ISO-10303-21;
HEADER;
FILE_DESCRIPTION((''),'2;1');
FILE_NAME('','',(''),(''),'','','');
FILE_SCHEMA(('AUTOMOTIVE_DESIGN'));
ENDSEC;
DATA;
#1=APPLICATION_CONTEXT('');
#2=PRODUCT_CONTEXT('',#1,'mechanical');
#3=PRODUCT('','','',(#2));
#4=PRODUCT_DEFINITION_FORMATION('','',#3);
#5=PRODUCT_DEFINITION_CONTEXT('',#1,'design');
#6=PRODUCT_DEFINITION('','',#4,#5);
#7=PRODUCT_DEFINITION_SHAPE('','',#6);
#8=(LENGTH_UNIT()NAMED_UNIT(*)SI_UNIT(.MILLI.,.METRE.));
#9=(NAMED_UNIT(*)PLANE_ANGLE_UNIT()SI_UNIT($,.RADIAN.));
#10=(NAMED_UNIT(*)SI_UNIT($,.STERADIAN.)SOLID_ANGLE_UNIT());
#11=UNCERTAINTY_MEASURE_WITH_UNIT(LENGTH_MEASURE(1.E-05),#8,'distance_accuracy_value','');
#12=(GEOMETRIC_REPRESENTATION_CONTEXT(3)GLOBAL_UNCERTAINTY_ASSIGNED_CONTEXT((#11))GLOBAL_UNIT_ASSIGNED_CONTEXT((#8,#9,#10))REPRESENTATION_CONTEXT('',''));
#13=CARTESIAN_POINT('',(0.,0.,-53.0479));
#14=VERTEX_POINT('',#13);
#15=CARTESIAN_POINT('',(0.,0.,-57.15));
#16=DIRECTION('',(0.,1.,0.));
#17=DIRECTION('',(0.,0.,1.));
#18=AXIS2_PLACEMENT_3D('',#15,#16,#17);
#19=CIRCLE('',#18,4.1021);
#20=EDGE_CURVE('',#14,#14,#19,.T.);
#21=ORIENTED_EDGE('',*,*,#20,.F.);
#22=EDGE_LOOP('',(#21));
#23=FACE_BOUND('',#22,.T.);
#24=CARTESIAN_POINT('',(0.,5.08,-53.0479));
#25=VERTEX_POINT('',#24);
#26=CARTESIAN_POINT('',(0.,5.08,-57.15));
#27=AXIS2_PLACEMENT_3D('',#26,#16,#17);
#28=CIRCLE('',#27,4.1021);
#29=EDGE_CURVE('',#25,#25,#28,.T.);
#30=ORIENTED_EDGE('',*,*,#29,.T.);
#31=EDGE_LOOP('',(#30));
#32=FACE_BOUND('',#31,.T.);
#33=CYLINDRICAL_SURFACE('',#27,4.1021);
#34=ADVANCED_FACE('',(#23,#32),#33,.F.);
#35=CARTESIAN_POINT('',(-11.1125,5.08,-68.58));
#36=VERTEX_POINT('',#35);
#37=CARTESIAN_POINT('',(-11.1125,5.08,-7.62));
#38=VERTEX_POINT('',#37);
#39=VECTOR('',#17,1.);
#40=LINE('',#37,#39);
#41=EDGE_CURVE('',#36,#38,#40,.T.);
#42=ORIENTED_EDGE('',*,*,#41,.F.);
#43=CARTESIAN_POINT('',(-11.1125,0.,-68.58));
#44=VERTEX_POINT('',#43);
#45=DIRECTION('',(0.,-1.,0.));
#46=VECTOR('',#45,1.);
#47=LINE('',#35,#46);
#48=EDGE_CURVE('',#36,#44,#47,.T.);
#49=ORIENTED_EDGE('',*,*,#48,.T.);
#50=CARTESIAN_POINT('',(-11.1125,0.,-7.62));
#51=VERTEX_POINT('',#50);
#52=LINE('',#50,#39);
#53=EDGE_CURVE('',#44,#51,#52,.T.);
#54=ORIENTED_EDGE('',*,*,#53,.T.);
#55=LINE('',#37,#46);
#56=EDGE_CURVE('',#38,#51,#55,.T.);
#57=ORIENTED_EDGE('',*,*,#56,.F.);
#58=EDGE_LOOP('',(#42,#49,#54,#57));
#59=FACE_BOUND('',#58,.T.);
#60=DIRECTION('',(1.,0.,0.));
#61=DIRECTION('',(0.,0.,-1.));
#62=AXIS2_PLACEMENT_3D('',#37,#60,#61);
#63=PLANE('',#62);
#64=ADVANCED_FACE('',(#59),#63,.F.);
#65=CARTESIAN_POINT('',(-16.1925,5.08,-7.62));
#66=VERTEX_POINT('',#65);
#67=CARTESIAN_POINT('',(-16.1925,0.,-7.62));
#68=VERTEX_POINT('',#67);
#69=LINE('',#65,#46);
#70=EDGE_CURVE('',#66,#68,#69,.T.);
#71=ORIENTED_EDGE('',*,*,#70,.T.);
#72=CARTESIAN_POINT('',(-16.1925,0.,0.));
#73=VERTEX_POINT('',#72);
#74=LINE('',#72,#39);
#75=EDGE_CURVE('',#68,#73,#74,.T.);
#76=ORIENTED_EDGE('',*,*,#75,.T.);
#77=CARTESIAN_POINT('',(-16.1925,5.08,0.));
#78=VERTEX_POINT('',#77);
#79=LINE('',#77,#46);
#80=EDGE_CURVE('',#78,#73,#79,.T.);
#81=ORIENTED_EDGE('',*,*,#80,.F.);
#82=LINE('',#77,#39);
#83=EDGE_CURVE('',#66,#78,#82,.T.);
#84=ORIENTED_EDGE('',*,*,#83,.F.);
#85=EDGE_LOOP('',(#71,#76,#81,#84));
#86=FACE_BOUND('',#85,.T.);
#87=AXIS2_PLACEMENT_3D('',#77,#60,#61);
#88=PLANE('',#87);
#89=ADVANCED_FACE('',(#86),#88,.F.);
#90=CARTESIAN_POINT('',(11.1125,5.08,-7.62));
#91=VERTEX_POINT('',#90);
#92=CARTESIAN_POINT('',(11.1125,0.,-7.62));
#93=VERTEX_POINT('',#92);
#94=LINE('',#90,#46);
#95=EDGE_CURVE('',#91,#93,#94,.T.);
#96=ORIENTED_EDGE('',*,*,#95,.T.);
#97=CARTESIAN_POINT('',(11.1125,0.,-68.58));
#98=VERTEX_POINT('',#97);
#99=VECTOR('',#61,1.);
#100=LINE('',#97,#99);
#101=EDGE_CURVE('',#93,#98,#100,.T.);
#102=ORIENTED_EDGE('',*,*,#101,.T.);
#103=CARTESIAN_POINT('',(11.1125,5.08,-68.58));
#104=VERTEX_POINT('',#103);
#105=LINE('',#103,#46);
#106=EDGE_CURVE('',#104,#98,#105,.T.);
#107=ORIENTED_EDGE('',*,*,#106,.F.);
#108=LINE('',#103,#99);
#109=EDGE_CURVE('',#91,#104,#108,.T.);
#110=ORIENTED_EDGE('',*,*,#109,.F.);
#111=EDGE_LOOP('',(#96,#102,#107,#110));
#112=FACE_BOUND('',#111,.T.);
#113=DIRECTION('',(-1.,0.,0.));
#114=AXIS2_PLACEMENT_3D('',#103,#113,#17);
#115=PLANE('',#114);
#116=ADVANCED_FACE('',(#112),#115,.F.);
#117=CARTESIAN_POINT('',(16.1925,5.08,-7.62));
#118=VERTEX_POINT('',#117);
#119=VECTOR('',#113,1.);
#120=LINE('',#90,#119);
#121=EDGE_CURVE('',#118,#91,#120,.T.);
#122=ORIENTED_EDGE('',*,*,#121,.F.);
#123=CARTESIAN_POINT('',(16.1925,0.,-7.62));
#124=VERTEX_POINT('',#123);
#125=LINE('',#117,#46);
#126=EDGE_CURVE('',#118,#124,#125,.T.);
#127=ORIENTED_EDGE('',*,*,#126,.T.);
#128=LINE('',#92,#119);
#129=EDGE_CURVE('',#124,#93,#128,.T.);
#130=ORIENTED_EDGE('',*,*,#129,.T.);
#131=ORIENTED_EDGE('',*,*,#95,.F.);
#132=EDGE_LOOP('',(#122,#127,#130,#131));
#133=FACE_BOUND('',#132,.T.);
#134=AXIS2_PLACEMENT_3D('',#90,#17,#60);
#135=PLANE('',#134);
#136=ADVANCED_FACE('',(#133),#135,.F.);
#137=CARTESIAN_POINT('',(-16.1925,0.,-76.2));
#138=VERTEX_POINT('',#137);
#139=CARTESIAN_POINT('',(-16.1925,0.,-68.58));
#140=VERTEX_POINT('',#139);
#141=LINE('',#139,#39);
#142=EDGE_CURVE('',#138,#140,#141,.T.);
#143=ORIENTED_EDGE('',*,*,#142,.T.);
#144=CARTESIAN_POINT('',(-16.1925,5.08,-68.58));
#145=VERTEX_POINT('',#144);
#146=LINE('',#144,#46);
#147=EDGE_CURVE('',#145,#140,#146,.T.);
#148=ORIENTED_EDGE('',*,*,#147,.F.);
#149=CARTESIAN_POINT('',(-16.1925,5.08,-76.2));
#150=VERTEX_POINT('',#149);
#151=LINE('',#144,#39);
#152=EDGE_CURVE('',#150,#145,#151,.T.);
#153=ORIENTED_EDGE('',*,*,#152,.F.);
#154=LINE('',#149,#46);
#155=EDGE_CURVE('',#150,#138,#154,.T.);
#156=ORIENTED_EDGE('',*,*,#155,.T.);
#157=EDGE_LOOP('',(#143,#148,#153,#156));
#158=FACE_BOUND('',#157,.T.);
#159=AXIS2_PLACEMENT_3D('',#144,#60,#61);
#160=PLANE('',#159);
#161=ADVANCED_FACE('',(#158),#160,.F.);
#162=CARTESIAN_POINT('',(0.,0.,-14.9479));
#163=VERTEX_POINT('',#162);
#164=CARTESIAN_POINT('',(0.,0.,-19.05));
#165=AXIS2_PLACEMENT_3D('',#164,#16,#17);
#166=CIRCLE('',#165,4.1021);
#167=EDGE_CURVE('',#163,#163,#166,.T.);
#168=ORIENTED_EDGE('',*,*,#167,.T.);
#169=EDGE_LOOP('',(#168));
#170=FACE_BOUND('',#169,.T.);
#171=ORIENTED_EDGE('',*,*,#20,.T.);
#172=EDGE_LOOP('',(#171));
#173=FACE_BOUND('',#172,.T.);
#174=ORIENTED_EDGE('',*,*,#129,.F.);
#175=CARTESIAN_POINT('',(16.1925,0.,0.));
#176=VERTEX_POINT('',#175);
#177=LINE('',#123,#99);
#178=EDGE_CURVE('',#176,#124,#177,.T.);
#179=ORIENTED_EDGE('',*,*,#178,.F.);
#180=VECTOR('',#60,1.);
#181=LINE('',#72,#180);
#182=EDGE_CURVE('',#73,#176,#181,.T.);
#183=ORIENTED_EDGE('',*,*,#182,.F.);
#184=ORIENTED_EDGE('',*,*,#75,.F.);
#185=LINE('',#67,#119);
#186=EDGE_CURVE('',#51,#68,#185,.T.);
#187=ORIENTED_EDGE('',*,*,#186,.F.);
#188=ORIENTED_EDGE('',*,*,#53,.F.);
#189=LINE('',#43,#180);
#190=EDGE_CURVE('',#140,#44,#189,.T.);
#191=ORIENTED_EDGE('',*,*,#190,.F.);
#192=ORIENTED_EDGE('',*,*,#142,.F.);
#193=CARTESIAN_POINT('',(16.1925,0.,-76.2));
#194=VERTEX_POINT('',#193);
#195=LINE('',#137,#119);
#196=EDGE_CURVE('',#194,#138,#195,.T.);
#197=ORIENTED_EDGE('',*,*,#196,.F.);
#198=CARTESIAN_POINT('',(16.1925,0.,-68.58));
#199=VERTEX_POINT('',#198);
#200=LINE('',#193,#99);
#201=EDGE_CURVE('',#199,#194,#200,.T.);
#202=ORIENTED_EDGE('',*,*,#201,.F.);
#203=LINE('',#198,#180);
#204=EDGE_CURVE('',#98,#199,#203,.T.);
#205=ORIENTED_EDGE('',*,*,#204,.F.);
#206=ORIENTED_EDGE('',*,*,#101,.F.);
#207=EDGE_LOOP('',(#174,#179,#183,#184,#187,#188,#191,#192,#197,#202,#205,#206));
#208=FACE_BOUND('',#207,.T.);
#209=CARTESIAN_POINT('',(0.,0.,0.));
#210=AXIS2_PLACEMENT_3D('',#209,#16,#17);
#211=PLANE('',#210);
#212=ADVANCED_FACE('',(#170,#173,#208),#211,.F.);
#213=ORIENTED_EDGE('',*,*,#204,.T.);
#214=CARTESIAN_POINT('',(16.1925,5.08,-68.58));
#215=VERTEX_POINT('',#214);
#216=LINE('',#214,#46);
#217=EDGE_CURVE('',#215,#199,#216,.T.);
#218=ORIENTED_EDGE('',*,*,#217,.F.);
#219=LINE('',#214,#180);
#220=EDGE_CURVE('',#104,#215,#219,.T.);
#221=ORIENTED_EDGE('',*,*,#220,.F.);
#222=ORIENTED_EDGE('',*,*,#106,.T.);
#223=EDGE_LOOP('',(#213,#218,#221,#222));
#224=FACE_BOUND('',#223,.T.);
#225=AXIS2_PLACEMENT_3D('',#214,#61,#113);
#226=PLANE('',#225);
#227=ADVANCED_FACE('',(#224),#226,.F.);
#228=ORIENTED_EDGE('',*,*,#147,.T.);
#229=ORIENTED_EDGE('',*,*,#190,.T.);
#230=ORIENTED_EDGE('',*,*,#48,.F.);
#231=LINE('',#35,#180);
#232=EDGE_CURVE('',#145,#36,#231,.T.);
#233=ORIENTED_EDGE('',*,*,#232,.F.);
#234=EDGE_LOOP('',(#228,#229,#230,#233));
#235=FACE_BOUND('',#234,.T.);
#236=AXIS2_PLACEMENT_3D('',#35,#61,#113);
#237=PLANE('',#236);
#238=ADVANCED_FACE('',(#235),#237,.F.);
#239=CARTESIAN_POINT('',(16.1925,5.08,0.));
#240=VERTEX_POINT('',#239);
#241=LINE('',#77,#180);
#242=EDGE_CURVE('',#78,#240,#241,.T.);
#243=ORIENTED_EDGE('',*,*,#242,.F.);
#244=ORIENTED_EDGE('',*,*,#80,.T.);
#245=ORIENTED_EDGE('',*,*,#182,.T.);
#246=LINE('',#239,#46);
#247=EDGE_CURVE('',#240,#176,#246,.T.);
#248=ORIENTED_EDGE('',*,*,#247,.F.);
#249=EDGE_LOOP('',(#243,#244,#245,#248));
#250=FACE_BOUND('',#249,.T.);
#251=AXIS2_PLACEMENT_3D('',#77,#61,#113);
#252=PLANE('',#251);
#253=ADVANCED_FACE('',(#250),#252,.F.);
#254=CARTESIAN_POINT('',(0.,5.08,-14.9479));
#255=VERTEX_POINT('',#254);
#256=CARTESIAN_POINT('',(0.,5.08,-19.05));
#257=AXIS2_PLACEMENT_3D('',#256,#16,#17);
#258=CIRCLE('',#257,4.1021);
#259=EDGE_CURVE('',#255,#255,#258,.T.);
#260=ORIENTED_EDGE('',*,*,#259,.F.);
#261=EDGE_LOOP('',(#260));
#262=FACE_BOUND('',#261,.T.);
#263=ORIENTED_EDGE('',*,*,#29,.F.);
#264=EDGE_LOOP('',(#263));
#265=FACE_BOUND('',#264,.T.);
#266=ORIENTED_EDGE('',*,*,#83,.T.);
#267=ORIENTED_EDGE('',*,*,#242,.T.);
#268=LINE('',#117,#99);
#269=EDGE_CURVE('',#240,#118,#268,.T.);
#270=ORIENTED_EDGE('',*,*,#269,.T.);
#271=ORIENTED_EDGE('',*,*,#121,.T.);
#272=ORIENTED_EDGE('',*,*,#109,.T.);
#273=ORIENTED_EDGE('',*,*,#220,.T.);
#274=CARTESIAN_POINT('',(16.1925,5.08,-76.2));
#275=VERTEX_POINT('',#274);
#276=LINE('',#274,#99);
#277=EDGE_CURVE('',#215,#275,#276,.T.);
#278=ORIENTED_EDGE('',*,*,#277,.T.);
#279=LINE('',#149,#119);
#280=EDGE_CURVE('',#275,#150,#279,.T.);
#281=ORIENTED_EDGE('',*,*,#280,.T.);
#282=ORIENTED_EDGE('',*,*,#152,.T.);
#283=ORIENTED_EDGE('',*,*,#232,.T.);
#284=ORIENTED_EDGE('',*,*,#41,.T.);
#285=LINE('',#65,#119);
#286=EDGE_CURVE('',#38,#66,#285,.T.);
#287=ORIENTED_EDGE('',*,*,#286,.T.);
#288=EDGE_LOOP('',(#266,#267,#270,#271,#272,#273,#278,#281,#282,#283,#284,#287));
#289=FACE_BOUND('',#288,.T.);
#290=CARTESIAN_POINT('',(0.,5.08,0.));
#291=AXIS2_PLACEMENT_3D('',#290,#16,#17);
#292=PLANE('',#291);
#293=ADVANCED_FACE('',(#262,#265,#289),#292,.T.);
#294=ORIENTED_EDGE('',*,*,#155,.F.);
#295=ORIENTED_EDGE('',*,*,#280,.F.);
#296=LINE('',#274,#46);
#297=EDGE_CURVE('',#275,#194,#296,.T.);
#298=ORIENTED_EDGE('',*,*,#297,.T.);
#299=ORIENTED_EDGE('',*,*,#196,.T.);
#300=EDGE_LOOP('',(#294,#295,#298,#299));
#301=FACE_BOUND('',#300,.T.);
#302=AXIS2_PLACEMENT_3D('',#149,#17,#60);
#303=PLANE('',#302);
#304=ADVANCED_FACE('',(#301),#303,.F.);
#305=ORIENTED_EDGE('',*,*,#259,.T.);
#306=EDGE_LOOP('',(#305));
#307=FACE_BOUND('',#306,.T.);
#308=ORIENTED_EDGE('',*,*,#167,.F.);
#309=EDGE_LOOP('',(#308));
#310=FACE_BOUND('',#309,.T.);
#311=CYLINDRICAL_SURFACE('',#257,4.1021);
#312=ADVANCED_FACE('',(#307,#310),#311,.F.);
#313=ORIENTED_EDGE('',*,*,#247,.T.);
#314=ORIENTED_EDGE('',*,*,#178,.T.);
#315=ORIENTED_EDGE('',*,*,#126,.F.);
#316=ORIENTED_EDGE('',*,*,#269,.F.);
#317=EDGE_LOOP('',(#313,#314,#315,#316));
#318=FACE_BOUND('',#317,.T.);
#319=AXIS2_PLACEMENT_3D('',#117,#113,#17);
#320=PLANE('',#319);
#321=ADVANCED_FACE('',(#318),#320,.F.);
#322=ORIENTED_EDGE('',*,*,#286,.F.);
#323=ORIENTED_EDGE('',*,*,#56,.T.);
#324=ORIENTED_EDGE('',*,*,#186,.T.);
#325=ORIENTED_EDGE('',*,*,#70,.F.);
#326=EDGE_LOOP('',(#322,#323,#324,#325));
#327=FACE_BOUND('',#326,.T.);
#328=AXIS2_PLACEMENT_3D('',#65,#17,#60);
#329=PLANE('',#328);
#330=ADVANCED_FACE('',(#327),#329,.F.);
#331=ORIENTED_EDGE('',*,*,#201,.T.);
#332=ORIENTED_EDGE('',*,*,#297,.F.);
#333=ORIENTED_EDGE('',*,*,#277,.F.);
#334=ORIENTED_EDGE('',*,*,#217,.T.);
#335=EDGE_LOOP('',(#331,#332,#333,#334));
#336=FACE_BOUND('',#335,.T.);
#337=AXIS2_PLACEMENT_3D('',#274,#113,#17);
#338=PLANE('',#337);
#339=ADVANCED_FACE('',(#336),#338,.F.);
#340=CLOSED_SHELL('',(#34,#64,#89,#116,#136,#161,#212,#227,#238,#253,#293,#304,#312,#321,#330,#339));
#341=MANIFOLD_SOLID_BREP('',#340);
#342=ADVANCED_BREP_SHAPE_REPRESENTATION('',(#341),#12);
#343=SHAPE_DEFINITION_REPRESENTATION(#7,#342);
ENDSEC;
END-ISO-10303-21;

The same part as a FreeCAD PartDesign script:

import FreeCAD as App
import Part
import Sketcher

V = App.Vector
Q = App.Units.Quantity

doc = App.newDocument("Part")
body = doc.addObject("PartDesign::Body", "Body")

# Sketch on XZ plane
sketch1 = body.newObject("Sketcher::SketchObject", "Sketch")
sketch1.AttachmentSupport = (doc.getObject("XZ_Plane"), [""])
sketch1.MapMode = "FlatFace"
sketch1.addGeometry(Part.LineSegment(V(-16, 0, 0), V(16, 0, 0)), False)
sketch1.addGeometry(Part.LineSegment(V(16, 0, 0), V(16, -8, 0)), False)
sketch1.addGeometry(Part.LineSegment(V(16, -8, 0), V(11, -8, 0)), False)
sketch1.addGeometry(Part.LineSegment(V(11, -8, 0), V(11, -69, 0)), False)
sketch1.addGeometry(Part.LineSegment(V(11, -69, 0), V(16, -69, 0)), False)
sketch1.addGeometry(Part.LineSegment(V(16, -69, 0), V(16, -76, 0)), False)
sketch1.addGeometry(Part.LineSegment(V(16, -76, 0), V(-16, -76, 0)), False)
sketch1.addGeometry(Part.LineSegment(V(-16, -76, 0), V(-16, -69, 0)), False)
sketch1.addGeometry(Part.LineSegment(V(-16, -69, 0), V(-11, -69, 0)), False)
sketch1.addGeometry(Part.LineSegment(V(-11, -69, 0), V(-11, -8, 0)), False)
sketch1.addGeometry(Part.LineSegment(V(-11, -8, 0), V(-16, -8, 0)), False)
sketch1.addGeometry(Part.LineSegment(V(-16, -8, 0), V(-16, 0, 0)), False)
sketch1.addConstraint(Sketcher.Constraint("Coincident", 0, 2, 1, 1))
sketch1.addConstraint(Sketcher.Constraint("Coincident", 1, 2, 2, 1))
sketch1.addConstraint(Sketcher.Constraint("Coincident", 2, 2, 3, 1))
sketch1.addConstraint(Sketcher.Constraint("Coincident", 3, 2, 4, 1))
sketch1.addConstraint(Sketcher.Constraint("Coincident", 4, 2, 5, 1))
sketch1.addConstraint(Sketcher.Constraint("Coincident", 5, 2, 6, 1))
sketch1.addConstraint(Sketcher.Constraint("Coincident", 6, 2, 7, 1))
sketch1.addConstraint(Sketcher.Constraint("Coincident", 7, 2, 8, 1))
sketch1.addConstraint(Sketcher.Constraint("Coincident", 8, 2, 9, 1))
sketch1.addConstraint(Sketcher.Constraint("Coincident", 9, 2, 10, 1))
sketch1.addConstraint(Sketcher.Constraint("Coincident", 10, 2, 11, 1))
sketch1.addConstraint(Sketcher.Constraint("Coincident", 11, 2, 0, 1))
sketch1.addConstraint(Sketcher.Constraint("Horizontal", 0))
sketch1.addConstraint(Sketcher.Constraint("Vertical", 1))
sketch1.addConstraint(Sketcher.Constraint("Horizontal", 2))
sketch1.addConstraint(Sketcher.Constraint("Vertical", 3))
sketch1.addConstraint(Sketcher.Constraint("Horizontal", 4))
sketch1.addConstraint(Sketcher.Constraint("Vertical", 5))
sketch1.addConstraint(Sketcher.Constraint("Horizontal", 6))
sketch1.addConstraint(Sketcher.Constraint("Vertical", 7))
sketch1.addConstraint(Sketcher.Constraint("Horizontal", 8))
sketch1.addConstraint(Sketcher.Constraint("Vertical", 9))
sketch1.addConstraint(Sketcher.Constraint("Horizontal", 10))
sketch1.addConstraint(Sketcher.Constraint("Vertical", 11))
sketch1.addConstraint(Sketcher.Constraint("Symmetric", 0, 2, 11, 2, -1, 1))
sketch1.addConstraint(Sketcher.Constraint("Symmetric", 4, 2, 7, 2, -2))
sketch1.addConstraint(Sketcher.Constraint("Symmetric", 2, 2, 9, 2, -2))
sketch1.addConstraint(Sketcher.Constraint("Vertical", 1, 2, 4, 2))
sketch1.addConstraint(Sketcher.Constraint("Equal", 1, 5))
sketch1.addConstraint(Sketcher.Constraint("DistanceX", 2, 2, 2, 1, Q("0.2 in")))
sketch1.addConstraint(Sketcher.Constraint("DistanceY", 1, 2, 1, 1, Q("0.3 in")))
sketch1.addConstraint(Sketcher.Constraint("DistanceY", 3, 2, 3, 1, Q("2.4 in")))
sketch1.addConstraint(Sketcher.Constraint("DistanceX", 0, 1, 0, 2, Q("1.275 in")))
pad1 = body.newObject("PartDesign::Pad", "Pad")
pad1.Profile = sketch1
pad1.Length = Q("0.2 in")
pad1.Reversed = True

# Sketch on XZ plane
sketch2 = body.newObject("Sketcher::SketchObject", "Sketch001")
sketch2.AttachmentSupport = (doc.getObject("XZ_Plane"), [""])
sketch2.MapMode = "FlatFace"
sketch2.AttachmentOffset = App.Placement(V(0, 0, -0.2 * 25.4), App.Rotation())
sketch2.addGeometry(Part.Circle(V(0, -57.1, 0), V(0, 0, 1), 4.1), False)
sketch2.addGeometry(Part.Circle(V(0, -19.1, 0), V(0, 0, 1), 4.1), False)
sketch2.addConstraint(Sketcher.Constraint("Equal", 0, 1))
sketch2.addConstraint(Sketcher.Constraint("PointOnObject", 0, 3, -2))
sketch2.addConstraint(Sketcher.Constraint("PointOnObject", 1, 3, -2))
sketch2.addConstraint(Sketcher.Constraint("Diameter", 0, Q("0.323 in")))
sketch2.addConstraint(Sketcher.Constraint("DistanceY", 0, 3, 1, 3, Q("1.5 in")))
sketch2.addConstraint(Sketcher.Constraint("DistanceY", 0, 3, -1, 1, Q("2.25 in")))
doc.recompute()
hole = body.newObject("PartDesign::Hole", "Hole")
hole.Profile = sketch2
hole.ThreadType = "None"
hole.Diameter = Q("0.323 in")
hole.DepthType = "Dimension"
hole.Depth = Q("0.65 in")
hole.DrillPoint = "Angled"
hole.DrillPointAngle = 118
hole.Reversed = True

doc.recompute()
